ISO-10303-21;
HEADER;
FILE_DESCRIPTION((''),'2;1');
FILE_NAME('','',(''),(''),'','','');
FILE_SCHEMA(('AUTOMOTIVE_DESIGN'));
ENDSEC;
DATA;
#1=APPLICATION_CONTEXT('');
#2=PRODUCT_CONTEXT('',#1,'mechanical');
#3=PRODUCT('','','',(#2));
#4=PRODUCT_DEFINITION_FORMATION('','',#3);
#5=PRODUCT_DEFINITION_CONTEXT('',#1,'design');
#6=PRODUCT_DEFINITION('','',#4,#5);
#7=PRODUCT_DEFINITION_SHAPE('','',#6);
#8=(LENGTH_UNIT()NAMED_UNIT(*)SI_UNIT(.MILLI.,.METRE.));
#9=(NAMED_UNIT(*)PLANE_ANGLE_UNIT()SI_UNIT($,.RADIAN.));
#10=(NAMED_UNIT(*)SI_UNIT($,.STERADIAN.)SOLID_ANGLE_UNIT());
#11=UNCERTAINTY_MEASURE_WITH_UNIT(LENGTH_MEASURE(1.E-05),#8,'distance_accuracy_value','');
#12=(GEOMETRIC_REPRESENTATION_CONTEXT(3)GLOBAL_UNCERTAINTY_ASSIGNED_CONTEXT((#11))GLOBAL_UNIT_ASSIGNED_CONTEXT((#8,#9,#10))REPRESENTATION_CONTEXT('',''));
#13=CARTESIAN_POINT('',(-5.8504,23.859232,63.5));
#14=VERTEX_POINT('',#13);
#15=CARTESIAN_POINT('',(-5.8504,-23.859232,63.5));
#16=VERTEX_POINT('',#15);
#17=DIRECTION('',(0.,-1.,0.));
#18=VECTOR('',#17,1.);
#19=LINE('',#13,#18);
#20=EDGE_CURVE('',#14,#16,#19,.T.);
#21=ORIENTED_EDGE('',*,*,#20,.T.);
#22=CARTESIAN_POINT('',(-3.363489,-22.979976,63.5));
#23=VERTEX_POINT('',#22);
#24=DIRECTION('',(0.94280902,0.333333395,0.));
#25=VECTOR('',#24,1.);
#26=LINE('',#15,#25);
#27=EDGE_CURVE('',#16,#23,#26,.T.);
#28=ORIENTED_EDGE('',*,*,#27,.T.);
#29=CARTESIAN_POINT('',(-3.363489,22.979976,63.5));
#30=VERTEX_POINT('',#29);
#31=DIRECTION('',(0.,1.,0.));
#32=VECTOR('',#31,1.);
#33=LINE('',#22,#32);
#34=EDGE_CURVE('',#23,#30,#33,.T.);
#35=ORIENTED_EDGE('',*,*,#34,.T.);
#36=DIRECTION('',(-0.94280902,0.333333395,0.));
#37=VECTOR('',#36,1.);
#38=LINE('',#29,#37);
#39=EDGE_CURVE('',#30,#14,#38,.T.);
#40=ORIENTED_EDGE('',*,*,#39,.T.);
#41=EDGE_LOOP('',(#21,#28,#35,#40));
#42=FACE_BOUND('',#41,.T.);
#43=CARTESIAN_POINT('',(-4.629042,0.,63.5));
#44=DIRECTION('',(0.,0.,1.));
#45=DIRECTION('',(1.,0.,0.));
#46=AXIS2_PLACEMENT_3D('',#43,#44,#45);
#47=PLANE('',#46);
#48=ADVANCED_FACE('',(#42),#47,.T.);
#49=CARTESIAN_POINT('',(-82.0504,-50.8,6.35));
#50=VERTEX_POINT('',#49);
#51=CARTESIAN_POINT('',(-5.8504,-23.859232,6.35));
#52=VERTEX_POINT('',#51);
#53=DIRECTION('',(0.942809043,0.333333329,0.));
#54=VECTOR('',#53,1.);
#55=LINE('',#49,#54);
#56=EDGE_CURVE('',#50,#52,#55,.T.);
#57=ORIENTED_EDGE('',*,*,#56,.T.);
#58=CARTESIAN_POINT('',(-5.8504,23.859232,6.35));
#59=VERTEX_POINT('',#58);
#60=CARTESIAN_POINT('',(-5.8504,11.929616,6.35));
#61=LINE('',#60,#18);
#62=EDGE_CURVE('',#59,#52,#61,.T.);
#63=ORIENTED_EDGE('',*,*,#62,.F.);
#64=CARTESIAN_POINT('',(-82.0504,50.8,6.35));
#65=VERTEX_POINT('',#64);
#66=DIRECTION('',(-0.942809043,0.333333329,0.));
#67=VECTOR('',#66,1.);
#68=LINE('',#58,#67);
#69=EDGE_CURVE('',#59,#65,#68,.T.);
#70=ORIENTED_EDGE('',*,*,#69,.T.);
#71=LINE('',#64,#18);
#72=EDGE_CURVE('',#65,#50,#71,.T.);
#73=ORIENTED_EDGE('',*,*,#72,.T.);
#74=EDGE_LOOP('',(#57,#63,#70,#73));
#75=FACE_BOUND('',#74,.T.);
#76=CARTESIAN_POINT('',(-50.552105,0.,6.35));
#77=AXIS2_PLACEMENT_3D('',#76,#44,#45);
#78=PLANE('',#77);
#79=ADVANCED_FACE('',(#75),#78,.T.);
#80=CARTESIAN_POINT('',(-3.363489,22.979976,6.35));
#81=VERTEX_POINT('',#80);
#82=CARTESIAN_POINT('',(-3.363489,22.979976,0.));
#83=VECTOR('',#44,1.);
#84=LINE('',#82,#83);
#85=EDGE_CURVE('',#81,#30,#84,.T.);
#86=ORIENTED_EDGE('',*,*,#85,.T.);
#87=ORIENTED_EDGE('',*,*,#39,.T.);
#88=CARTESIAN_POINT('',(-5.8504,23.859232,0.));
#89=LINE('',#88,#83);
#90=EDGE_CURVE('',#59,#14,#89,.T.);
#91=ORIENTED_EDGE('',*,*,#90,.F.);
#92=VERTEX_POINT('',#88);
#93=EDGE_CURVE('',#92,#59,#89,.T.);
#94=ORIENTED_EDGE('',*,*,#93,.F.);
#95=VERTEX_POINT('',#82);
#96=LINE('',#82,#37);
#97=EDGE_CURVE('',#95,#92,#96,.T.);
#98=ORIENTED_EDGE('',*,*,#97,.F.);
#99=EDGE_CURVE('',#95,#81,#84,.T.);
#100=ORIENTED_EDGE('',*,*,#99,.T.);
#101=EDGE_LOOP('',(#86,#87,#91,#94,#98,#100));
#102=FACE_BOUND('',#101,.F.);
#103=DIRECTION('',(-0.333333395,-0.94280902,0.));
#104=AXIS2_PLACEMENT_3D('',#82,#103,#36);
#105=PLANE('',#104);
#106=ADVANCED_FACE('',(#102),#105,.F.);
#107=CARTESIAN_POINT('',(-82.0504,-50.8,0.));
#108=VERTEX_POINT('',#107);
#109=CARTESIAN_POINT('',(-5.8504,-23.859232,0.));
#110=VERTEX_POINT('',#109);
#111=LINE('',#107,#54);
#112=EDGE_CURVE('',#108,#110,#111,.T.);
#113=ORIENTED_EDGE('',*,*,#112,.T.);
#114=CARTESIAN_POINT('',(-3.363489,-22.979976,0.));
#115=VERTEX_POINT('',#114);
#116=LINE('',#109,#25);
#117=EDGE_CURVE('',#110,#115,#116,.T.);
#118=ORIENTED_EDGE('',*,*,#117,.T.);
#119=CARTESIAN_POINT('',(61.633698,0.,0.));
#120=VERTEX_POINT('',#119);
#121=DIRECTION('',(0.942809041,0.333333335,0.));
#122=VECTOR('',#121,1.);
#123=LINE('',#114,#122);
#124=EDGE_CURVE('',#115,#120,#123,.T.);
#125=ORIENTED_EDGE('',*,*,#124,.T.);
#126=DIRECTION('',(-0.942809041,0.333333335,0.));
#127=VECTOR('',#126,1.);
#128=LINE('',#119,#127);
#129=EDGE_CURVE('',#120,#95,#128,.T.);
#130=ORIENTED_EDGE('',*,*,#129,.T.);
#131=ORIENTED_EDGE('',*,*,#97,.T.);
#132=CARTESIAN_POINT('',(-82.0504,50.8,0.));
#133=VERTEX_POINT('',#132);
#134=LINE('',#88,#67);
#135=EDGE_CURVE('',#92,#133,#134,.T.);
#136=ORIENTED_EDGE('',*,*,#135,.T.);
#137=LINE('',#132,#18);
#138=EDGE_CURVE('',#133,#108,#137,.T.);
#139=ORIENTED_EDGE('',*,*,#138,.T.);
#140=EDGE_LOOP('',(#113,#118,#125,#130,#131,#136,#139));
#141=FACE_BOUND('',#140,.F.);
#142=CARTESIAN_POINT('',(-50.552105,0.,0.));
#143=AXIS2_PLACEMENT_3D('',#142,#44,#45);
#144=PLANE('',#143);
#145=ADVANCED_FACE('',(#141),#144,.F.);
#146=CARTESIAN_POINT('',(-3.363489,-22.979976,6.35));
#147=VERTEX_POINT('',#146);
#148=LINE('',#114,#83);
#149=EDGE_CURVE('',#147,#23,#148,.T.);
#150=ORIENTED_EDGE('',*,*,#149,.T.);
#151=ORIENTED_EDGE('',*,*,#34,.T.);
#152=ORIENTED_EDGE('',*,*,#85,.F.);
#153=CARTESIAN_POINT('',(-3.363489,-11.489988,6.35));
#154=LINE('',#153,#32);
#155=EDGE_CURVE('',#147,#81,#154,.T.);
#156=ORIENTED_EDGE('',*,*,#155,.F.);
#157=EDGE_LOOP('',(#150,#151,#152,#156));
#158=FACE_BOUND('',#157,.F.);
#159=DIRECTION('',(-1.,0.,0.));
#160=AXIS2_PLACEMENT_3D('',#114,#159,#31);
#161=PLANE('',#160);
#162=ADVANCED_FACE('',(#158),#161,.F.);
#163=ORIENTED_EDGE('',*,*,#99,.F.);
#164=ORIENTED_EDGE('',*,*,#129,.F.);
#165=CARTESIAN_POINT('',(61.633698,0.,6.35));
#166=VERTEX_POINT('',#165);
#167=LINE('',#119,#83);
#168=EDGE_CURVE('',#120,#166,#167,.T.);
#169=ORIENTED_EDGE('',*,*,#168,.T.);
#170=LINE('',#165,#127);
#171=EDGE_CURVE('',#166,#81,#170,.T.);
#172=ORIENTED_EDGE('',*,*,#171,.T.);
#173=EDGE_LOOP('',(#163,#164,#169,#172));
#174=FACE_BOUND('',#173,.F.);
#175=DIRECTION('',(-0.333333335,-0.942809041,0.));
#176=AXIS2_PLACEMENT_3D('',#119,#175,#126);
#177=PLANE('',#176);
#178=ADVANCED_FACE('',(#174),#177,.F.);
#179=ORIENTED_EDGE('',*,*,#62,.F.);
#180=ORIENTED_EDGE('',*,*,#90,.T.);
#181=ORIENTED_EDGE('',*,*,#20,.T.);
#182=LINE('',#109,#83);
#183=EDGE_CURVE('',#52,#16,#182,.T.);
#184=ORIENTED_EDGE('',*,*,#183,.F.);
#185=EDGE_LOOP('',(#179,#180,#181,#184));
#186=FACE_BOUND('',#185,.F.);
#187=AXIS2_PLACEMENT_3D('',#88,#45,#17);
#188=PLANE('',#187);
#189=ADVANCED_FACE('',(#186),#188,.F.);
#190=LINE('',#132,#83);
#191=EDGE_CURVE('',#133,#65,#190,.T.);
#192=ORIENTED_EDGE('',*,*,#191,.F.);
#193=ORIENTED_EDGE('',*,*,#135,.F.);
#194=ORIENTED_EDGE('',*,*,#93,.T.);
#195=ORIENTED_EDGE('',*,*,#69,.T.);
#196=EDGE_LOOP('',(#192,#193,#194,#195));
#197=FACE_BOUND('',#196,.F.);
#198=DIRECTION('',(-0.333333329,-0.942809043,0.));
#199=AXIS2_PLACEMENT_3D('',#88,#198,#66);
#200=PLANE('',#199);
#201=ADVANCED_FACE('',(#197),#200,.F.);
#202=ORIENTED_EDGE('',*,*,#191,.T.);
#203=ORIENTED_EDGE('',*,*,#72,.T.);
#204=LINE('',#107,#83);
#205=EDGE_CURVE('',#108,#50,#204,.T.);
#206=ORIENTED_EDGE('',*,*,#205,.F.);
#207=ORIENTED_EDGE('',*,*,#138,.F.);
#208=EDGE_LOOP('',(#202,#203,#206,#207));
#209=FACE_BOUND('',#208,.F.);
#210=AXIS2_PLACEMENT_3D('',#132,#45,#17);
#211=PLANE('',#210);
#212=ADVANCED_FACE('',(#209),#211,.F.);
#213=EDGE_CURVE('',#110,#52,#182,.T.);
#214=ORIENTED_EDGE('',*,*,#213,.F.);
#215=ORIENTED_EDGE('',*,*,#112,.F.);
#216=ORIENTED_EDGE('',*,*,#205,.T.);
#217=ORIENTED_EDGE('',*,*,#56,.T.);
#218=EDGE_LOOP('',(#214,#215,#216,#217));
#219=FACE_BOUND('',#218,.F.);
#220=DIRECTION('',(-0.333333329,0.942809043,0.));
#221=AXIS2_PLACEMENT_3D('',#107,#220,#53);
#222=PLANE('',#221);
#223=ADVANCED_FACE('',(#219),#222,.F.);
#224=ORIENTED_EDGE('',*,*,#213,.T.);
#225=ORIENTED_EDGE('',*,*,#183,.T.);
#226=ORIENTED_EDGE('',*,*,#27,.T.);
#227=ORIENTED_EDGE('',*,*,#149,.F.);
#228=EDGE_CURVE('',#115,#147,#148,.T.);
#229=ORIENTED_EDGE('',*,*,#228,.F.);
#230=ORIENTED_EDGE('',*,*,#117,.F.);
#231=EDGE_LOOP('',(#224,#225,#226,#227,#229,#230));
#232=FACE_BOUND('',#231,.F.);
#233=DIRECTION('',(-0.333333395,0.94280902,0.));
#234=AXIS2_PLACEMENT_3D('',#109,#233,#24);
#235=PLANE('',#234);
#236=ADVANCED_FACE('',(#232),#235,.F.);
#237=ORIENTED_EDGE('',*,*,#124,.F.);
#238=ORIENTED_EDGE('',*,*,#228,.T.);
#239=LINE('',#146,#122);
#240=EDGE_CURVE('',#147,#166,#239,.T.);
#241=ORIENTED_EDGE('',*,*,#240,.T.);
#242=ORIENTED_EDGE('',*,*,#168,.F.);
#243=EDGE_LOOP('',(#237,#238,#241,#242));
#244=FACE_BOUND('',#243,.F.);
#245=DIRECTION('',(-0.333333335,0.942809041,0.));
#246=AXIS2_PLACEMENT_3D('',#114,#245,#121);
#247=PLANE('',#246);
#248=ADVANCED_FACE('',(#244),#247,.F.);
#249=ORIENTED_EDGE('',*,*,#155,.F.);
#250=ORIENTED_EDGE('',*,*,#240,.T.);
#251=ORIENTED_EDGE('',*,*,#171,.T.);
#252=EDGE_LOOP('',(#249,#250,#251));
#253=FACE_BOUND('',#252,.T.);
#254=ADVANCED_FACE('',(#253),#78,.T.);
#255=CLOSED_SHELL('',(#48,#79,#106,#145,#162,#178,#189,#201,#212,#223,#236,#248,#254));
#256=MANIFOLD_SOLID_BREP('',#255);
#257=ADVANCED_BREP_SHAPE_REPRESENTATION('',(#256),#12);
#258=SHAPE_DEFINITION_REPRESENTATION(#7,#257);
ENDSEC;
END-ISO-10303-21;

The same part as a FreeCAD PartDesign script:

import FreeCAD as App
import Part
import Sketcher

V = App.Vector
Q = App.Units.Quantity

doc = App.newDocument("Part")
body = doc.addObject("PartDesign::Body", "Body")

sketch1 = body.newObject("Sketcher::SketchObject", "Sketch")
sketch1.AttachmentSupport = (doc.getObject("XY_Plane"), [""])
sketch1.MapMode = "FlatFace"
sketch1.addGeometry([
    Part.LineSegment(V(-3.4, 23, 0), V(-5.9, 23.9, 0)),
    Part.LineSegment(V(-5.9, 23.9, 0), V(-5.9, -23.9, 0)),
    Part.LineSegment(V(-5.9, -23.9, 0), V(-3.4, -23, 0)),
    Part.LineSegment(V(-3.4, -23, 0), V(-3.4, 23, 0)),
], False)
sketch1.addConstraint([
    Sketcher.Constraint("Coincident", 0, 2, 1, 1),
    Sketcher.Constraint("Coincident", 1, 2, 2, 1),
    Sketcher.Constraint("Coincident", 2, 2, 3, 1),
    Sketcher.Constraint("Coincident", 3, 2, 0, 1),
    Sketcher.Constraint("Vertical", 1),
    Sketcher.Constraint("Vertical", 3),
    Sketcher.Constraint("Equal", 0, 2),
    Sketcher.Constraint("DistanceX", 0, 2, -1, 1, Q("5.8504 mm")),
    Sketcher.Constraint("DistanceY", 1, 2, 1, 1, Q("47.718464 mm")),
    Sketcher.Constraint("DistanceY", 3, 1, 3, 2, Q("45.959952 mm")),
    Sketcher.Constraint("DistanceY", -1, 1, 0, 2, Q("23.859232 mm")),
    Sketcher.Constraint("DistanceX", 2, 2, -1, 1, Q("3.363489 mm")),
])
pad1 = body.newObject("PartDesign::Pad", "Pad")
pad1.Profile = sketch1
pad1.Length = Q("2.5 in")

sketch2 = body.newObject("Sketcher::SketchObject", "Sketch001")
sketch2.AttachmentSupport = (doc.getObject("XY_Plane"), [""])
sketch2.MapMode = "FlatFace"
sketch2.addGeometry([
    Part.LineSegment(V(-5.9, 23.9, 0), V(-82.1, 50.8, 0)),
    Part.LineSegment(V(-82.1, 50.8, 0), V(-82.1, -50.8, 0)),
    Part.LineSegment(V(-82.1, -50.8, 0), V(-5.9, -23.9, 0)),
    Part.LineSegment(V(-5.9, -23.9, 0), V(-3.4, -23, 0)),
    Part.LineSegment(V(-3.4, -23, 0), V(61.6, 0, 0)),
    Part.LineSegment(V(61.6, 0, 0), V(-3.4, 23, 0)),
    Part.LineSegment(V(-3.4, 23, 0), V(-5.9, 23.9, 0)),
], False)
sketch2.addConstraint([
    Sketcher.Constraint("Coincident", 0, 2, 1, 1),
    Sketcher.Constraint("Coincident", 1, 2, 2, 1),
    Sketcher.Constraint("Coincident", 2, 2, 3, 1),
    Sketcher.Constraint("Coincident", 3, 2, 4, 1),
    Sketcher.Constraint("Coincident", 4, 2, 5, 1),
    Sketcher.Constraint("Coincident", 5, 2, 6, 1),
    Sketcher.Constraint("Coincident", 6, 2, 0, 1),
    Sketcher.Constraint("Vertical", 1),
    Sketcher.Constraint("Symmetric", 3, 2, 5, 2, -1),
    Sketcher.Constraint("Symmetric", 2, 2, 6, 2, -1),
    Sketcher.Constraint("PointOnObject", 4, 2, -1),
    Sketcher.Constraint("Parallel", 2, 3),
    Sketcher.Constraint("Parallel", 3, 4),
    Sketcher.Constraint("Parallel", 0, 5),
    Sketcher.Constraint("DistanceY", 1, 2, 1, 1, Q("4 in")),
    Sketcher.Constraint("DistanceX", 1, 2, 2, 2, Q("3 in")),
    Sketcher.Constraint("DistanceX", 0, 2, -1, 1, Q("82.0504 mm")),
    Sketcher.Constraint("DistanceX", -1, 1, 4, 2, Q("61.633698 mm")),
    Sketcher.Constraint("DistanceX", 3, 2, -1, 1, Q("3.363489 mm")),
])
pad2 = body.newObject("PartDesign::Pad", "Pad001")
pad2.Profile = sketch2
pad2.Length = Q("0.25 in")

doc.recompute()
